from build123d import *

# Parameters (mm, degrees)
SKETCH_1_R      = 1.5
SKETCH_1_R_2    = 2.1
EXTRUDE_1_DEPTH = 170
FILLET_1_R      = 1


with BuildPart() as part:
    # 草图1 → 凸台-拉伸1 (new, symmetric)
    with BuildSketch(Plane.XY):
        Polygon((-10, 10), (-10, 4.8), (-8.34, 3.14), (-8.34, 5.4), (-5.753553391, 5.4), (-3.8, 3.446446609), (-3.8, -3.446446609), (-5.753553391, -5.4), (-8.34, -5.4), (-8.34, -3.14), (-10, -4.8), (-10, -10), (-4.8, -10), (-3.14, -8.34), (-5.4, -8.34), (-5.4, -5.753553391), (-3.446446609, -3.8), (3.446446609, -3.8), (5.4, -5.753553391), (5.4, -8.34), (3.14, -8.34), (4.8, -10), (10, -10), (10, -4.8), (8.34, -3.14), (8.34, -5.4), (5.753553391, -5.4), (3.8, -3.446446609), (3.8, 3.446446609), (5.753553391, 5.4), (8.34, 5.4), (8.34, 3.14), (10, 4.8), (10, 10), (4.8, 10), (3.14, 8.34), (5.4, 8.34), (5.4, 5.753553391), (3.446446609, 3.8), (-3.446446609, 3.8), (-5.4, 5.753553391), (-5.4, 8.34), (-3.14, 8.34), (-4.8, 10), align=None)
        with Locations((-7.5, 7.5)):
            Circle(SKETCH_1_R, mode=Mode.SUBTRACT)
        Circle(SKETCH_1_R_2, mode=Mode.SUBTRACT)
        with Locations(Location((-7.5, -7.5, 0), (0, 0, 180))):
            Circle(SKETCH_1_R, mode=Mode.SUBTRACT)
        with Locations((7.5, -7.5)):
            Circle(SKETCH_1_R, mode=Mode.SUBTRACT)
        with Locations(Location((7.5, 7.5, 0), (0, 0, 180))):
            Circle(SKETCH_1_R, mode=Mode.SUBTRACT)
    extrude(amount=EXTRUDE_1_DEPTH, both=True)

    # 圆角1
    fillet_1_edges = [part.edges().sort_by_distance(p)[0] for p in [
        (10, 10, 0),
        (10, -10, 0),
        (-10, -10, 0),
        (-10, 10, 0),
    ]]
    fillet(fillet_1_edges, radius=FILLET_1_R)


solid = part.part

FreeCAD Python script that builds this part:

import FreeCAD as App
import Part
import Sketcher

V = App.Vector


def edges_at(feature, points):
    """Names of the edges that pass closest to the given points."""
    edges = feature.Shape.Edges
    near = lambda p: min(range(len(edges)), key=lambda i: edges[i].distToShape(Part.Vertex(*p))[0])
    return sorted({f"Edge{near(p) + 1}" for p in points})


def add_polygon(sketch, points):
    """Adds a closed chain of lines whose ends are joined by coincident constraints."""
    first, n = sketch.GeometryCount, len(points)
    for a, b in zip(points, points[1:] + points[:1]):
        sketch.addGeometry(Part.LineSegment(App.Vector(*a, 0), App.Vector(*b, 0)), False)
    for i in range(n):
        sketch.addConstraint(Sketcher.Constraint("Coincident", first + i, 2, first + (i + 1) % n, 1))

doc = App.newDocument("Part")
params = doc.addObject("Spreadsheet::Sheet", "Params")
for row, (alias, value) in enumerate([
    ("sketch1_diameter", "3 mm"),
    ("sketch1_diameter2", "4.2 mm"),
    ("sketch1_width", "5.2 mm"),
    ("sketch1_width2", "2.26 mm"),
    ("pad1_length", "340 mm"),
    ("fillet_radius", "1 mm"),
], start=1):
    params.set(f"A{row}", alias)
    params.set(f"B{row}", "=" + value)
    params.setAlias(f"B{row}", alias)

body = doc.addObject("PartDesign::Body", "Body")

# Sketch on XY plane
sketch1 = body.newObject("Sketcher::SketchObject", "Sketch")
sketch1.AttachmentSupport = (doc.getObject("XY_Plane"), [""])
sketch1.MapMode = "FlatFace"
add_polygon(sketch1, [(-10, 10), (-10, 4.8), (-8.3, 3.1), (-8.3, 5.4), (-5.8, 5.4), (-3.8, 3.4), (-3.8, -3.4), (-5.8, -5.4), (-8.3, -5.4), (-8.3, -3.1), (-10, -4.8), (-10, -10), (-4.8, -10), (-3.1, -8.3), (-5.4, -8.3), (-5.4, -5.8), (-3.4, -3.8), (3.4, -3.8), (5.4, -5.8), (5.4, -8.3), (3.1, -8.3), (4.8, -10), (10, -10), (10, -4.8), (8.3, -3.1), (8.3, -5.4), (5.8, -5.4), (3.8, -3.4), (3.8, 3.4), (5.8, 5.4), (8.3, 5.4), (8.3, 3.1), (10, 4.8), (10, 10), (4.8, 10), (3.1, 8.3), (5.4, 8.3), (5.4, 5.8), (3.4, 3.8), (-3.4, 3.8), (-5.4, 5.8), (-5.4, 8.3), (-3.1, 8.3), (-4.8, 10)])  # lines 0-43
sketch1.addGeometry(Part.Circle(V(-7.5, -7.5, 0), V(0, 0, 1), 1.5), False)  # 44
sketch1.addGeometry(Part.Circle(V(7.5, -7.5, 0), V(0, 0, 1), 1.5), False)  # 45
sketch1.addGeometry(Part.Circle(V(-7.5, 7.5, 0), V(0, 0, 1), 1.5), False)  # 46
sketch1.addGeometry(Part.Circle(V(0, 0, 0), V(0, 0, 1), 2.1), False)  # 47
sketch1.addGeometry(Part.Circle(V(7.5, 7.5, 0), V(0, 0, 1), 1.5), False)  # 48
sketch1.addConstraint(Sketcher.Constraint("Vertical", 0))
sketch1.addConstraint(Sketcher.Constraint("Vertical", 2))
sketch1.addConstraint(Sketcher.Constraint("Horizontal", 3))
sketch1.addConstraint(Sketcher.Constraint("Vertical", 5))
sketch1.addConstraint(Sketcher.Constraint("Horizontal", 7))
sketch1.addConstraint(Sketcher.Constraint("Vertical", 8))
sketch1.addConstraint(Sketcher.Constraint("Vertical", 10))
sketch1.addConstraint(Sketcher.Constraint("Horizontal", 11))
sketch1.addConstraint(Sketcher.Constraint("Horizontal", 13))
sketch1.addConstraint(Sketcher.Constraint("Vertical", 14))
sketch1.addConstraint(Sketcher.Constraint("Horizontal", 16))
sketch1.addConstraint(Sketcher.Constraint("Vertical", 18))
sketch1.addConstraint(Sketcher.Constraint("Horizontal", 19))
sketch1.addConstraint(Sketcher.Constraint("Horizontal", 21))
sketch1.addConstraint(Sketcher.Constraint("Vertical", 22))
sketch1.addConstraint(Sketcher.Constraint("Vertical", 24))
sketch1.addConstraint(Sketcher.Constraint("Horizontal", 25))
sketch1.addConstraint(Sketcher.Constraint("Vertical", 27))
sketch1.addConstraint(Sketcher.Constraint("Horizontal", 29))
sketch1.addConstraint(Sketcher.Constraint("Vertical", 30))
sketch1.addConstraint(Sketcher.Constraint("Vertical", 32))
sketch1.addConstraint(Sketcher.Constraint("Horizontal", 33))
sketch1.addConstraint(Sketcher.Constraint("Horizontal", 35))
sketch1.addConstraint(Sketcher.Constraint("Vertical", 36))
sketch1.addConstraint(Sketcher.Constraint("Horizontal", 38))
sketch1.addConstraint(Sketcher.Constraint("Vertical", 40))
sketch1.addConstraint(Sketcher.Constraint("Horizontal", 41))
sketch1.addConstraint(Sketcher.Constraint("Horizontal", 43))
sketch1.addConstraint(Sketcher.Constraint("Coincident", 47, 3, -1, 1))
sketch1.addConstraint(Sketcher.Constraint("Equal", 44, 45))
sketch1.addConstraint(Sketcher.Constraint("Equal", 45, 46))
sketch1.addConstraint(Sketcher.Constraint("Equal", 46, 48))
sketch1.addConstraint(Sketcher.Constraint("Symmetric", 45, 3, 46, 3, -1, 1))
sketch1.addConstraint(Sketcher.Constraint("Symmetric", 44, 3, 48, 3, -1, 1))
sketch1.addConstraint(Sketcher.Constraint("Symmetric", 0, 2, 22, 2, -1, 1))
sketch1.addConstraint(Sketcher.Constraint("Symmetric", 1, 2, 23, 2, -1, 1))
sketch1.addConstraint(Sketcher.Constraint("Symmetric", 3, 2, 25, 2, -1, 1))
sketch1.addConstraint(Sketcher.Constraint("Symmetric", 4, 2, 26, 2, -1, 1))
sketch1.addConstraint(Sketcher.Constraint("Symmetric", 6, 2, 28, 2, -1, 1))
sketch1.addConstraint(Sketcher.Constraint("Symmetric", 8, 2, 30, 2, -1, 1))
sketch1.addConstraint(Sketcher.Constraint("Symmetric", 9, 2, 31, 2, -1, 1))
sketch1.addConstraint(Sketcher.Constraint("Symmetric", 11, 2, 33, 2, -1, 1))
sketch1.addConstraint(Sketcher.Constraint("Symmetric", 12, 2, 34, 2, -1, 1))
sketch1.addConstraint(Sketcher.Constraint("Symmetric", 14, 2, 36, 2, -1, 1))
sketch1.addConstraint(Sketcher.Constraint("Symmetric", 15, 2, 37, 2, -1, 1))
sketch1.addConstraint(Sketcher.Constraint("Symmetric", 17, 2, 39, 2, -1, 1))
sketch1.addConstraint(Sketcher.Constraint("Symmetric", 19, 2, 41, 2, -1, 1))
sketch1.addConstraint(Sketcher.Constraint("Symmetric", 20, 2, 42, 2, -1, 1))
sketch1.addConstraint(Sketcher.Constraint("Symmetric", 44, 3, 45, 3, -2))
sketch1.addConstraint(Sketcher.Constraint("Symmetric", 14, 2, 17, 2, -2))
sketch1.addConstraint(Sketcher.Constraint("Symmetric", 12, 2, 19, 2, -2))
sketch1.addConstraint(Sketcher.Constraint("Symmetric", 11, 2, 20, 2, -2))
sketch1.addConstraint(Sketcher.Constraint("Symmetric", 9, 2, 22, 2, -2))
sketch1.addConstraint(Sketcher.Constraint("Symmetric", 8, 2, 23, 2, -2))
sketch1.addConstraint(Sketcher.Constraint("Symmetric", 6, 2, 25, 2, -2))
sketch1.addConstraint(Sketcher.Constraint("Parallel", 1, 4))
sketch1.addConstraint(Sketcher.Constraint("Perpendicular", 4, 6))
sketch1.addConstraint(Sketcher.Constraint("Parallel", 6, 9))
sketch1.addConstraint(Sketcher.Constraint("Parallel", 9, 12))
sketch1.addConstraint(Sketcher.Constraint("Parallel", 12, 15))
sketch1.addConstraint(Sketcher.Constraint("Perpendicular", 15, 17))
sketch1.addConstraint(Sketcher.Constraint("Perpendicular", 26, 28))
sketch1.addConstraint(Sketcher.Constraint("Perpendicular", 37, 39))
sketch1.addConstraint(Sketcher.Constraint("Equal", 43, 0))
sketch1.addConstraint(Sketcher.Constraint("Equal", 41, 2))
sketch1.addConstraint(Sketcher.Constraint("Equal", 38, 5))
sketch1.addConstraint(Sketcher.Constraint("Equal", 29, 14))
sketch1.addConstraint(Sketcher.Constraint("Equal", 9, 12))
sketch1.addConstraint(Sketcher.Constraint("Equal", 6, 15))
sketch1.addConstraint(Sketcher.Constraint("Diameter", 44, 3.0))
sketch1.addConstraint(Sketcher.Constraint("Diameter", 47, 4.2))
sketch1.addConstraint(Sketcher.Constraint("DistanceX", 11, 1, 11, 2, 5.2))
sketch1.addConstraint(Sketcher.Constraint("DistanceX", 0, 2, -1, 1, 10.0))
sketch1.addConstraint(Sketcher.Constraint("DistanceX", 44, 3, 45, 3, 15.0))
sketch1.addConstraint(Sketcher.Constraint("DistanceY", 44, 3, 46, 3, 15.0))
sketch1.addConstraint(Sketcher.Constraint("DistanceX", 11, 2, 5, 2, 1.0))
sketch1.addConstraint(Sketcher.Constraint("DistanceX", 13, 2, 13, 1, 2.26))
sketch1.addConstraint(Sketcher.Constraint("DistanceY", -1, 1, 2, 2, 5.4))
sketch1.addConstraint(Sketcher.Constraint("Distance", 4, 2.762742))
sketch1.setExpression("Constraints[113]", "Params.sketch1_diameter")
sketch1.setExpression("Constraints[114]", "Params.sketch1_diameter2")
sketch1.setExpression("Constraints[115]", "Params.sketch1_width")
sketch1.setExpression("Constraints[120]", "Params.sketch1_width2")
pad1 = body.newObject("PartDesign::Pad", "Pad")
pad1.Profile = sketch1
pad1.setExpression("Length", "Params.pad1_length")
pad1.Midplane = True
doc.recompute()

fillet = body.newObject("PartDesign::Fillet", "Fillet")
fillet.Base = (pad1, edges_at(pad1, [
    (10, 10, 0),
    (10, -10, 0),
    (-10, -10, 0),
    (-10, 10, 0),
]))
fillet.setExpression("Radius", "Params.fillet_radius")

doc.recompute()
